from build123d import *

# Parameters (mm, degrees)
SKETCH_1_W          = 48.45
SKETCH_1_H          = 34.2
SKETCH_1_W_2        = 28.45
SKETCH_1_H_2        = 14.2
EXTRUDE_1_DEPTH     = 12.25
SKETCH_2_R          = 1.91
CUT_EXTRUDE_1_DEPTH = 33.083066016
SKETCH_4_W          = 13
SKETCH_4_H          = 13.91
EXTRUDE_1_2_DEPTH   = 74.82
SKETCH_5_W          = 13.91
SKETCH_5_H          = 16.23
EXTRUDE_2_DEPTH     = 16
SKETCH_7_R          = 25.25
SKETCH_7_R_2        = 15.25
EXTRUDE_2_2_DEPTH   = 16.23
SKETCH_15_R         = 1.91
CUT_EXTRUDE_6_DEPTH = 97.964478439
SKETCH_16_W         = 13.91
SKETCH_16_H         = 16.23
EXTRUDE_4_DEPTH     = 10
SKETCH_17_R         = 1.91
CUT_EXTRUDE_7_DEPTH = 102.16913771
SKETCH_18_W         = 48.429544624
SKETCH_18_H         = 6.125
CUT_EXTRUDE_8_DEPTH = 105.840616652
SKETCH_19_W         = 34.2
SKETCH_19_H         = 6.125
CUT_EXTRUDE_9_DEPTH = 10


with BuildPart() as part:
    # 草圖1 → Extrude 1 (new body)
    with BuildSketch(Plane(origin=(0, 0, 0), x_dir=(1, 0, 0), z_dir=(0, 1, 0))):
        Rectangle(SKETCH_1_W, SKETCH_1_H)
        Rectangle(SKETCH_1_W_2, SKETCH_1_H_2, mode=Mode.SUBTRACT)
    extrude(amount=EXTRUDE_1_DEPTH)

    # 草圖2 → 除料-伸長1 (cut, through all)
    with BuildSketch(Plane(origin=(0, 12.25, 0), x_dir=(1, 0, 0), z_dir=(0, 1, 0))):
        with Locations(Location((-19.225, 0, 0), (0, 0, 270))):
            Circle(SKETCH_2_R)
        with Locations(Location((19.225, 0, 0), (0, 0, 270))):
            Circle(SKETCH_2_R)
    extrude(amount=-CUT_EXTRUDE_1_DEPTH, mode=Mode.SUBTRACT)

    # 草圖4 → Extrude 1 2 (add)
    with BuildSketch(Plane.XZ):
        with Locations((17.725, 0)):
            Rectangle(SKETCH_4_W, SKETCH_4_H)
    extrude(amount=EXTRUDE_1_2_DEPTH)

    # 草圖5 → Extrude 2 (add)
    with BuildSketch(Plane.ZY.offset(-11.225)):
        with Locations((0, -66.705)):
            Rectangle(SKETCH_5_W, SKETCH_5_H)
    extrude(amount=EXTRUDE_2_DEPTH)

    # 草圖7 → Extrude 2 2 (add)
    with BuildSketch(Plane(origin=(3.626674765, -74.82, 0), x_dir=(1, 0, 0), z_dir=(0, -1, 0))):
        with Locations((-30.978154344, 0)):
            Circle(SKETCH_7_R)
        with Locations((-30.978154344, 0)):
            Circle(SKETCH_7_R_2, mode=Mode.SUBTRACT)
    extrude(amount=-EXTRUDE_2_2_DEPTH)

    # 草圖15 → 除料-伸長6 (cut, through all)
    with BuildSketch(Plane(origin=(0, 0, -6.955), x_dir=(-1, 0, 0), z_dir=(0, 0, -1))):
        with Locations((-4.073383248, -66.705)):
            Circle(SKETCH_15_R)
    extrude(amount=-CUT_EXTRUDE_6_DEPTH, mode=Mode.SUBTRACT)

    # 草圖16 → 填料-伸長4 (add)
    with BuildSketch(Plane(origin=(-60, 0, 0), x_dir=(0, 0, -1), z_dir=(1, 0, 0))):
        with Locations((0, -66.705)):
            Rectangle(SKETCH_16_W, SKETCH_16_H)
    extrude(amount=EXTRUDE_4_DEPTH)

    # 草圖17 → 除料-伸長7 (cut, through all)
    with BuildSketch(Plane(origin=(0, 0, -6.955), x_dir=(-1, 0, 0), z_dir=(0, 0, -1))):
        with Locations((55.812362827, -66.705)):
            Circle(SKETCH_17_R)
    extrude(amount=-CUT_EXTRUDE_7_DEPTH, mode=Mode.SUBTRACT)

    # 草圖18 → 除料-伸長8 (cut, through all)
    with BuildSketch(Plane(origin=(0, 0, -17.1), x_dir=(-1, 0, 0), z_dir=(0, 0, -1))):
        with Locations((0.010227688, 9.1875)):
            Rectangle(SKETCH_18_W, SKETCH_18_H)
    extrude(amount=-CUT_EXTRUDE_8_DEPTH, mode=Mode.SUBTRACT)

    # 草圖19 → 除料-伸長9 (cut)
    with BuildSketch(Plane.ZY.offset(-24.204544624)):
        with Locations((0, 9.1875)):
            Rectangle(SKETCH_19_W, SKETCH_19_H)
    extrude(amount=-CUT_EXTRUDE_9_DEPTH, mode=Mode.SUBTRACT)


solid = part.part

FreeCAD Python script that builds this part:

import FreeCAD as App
import Part
import Sketcher
from FreeCAD import Vector

doc = App.newDocument("Part")
body = doc.addObject("PartDesign::Body", "Body")

# Sketch on XZ plane
sketch1 = body.newObject("Sketcher::SketchObject", "Sketch")
sketch1.AttachmentSupport = (doc.getObject("XZ_Plane"), [""])
sketch1.MapMode = "FlatFace"
sketch1.addGeometry([
    Part.LineSegment(Vector(-24, -17, 0), Vector(-24, 17, 0)),  # 0
    Part.LineSegment(Vector(-24, 17, 0), Vector(24, 17, 0)),  # 1
    Part.LineSegment(Vector(24, 17, 0), Vector(24, -17, 0)),  # 2
    Part.LineSegment(Vector(24, -17, 0), Vector(-24, -17, 0)),  # 3
    Part.LineSegment(Vector(14, 7, 0), Vector(-14, 7, 0)),  # 4
    Part.LineSegment(Vector(-14, 7, 0), Vector(-14, -7, 0)),  # 5
    Part.LineSegment(Vector(-14, -7, 0), Vector(14, -7, 0)),  # 6
    Part.LineSegment(Vector(14, -7, 0), Vector(14, 7, 0)),  # 7
], False)
sketch1.addConstraint([
    Sketcher.Constraint("Coincident", 0, 2, 1, 1),
    Sketcher.Constraint("Coincident", 1, 2, 2, 1),
    Sketcher.Constraint("Coincident", 2, 2, 3, 1),
    Sketcher.Constraint("Coincident", 3, 2, 0, 1),
    Sketcher.Constraint("Coincident", 4, 2, 5, 1),
    Sketcher.Constraint("Coincident", 5, 2, 6, 1),
    Sketcher.Constraint("Coincident", 6, 2, 7, 1),
    Sketcher.Constraint("Coincident", 7, 2, 4, 1),
    Sketcher.Constraint("Vertical", 0),
    Sketcher.Constraint("Horizontal", 1),
    Sketcher.Constraint("Vertical", 2),
    Sketcher.Constraint("Horizontal", 3),
    Sketcher.Constraint("Horizontal", 4),
    Sketcher.Constraint("Vertical", 5),
    Sketcher.Constraint("Horizontal", 6),
    Sketcher.Constraint("Vertical", 7),
    Sketcher.Constraint("Symmetric", 0, 2, 2, 2, -1, 1),
    Sketcher.Constraint("Symmetric", 4, 2, 6, 2, -1, 1),
    Sketcher.Constraint("DistanceY", 0, 1, 0, 2, 34.2),
    Sketcher.Constraint("DistanceY", 5, 2, 5, 1, 14.2),
    Sketcher.Constraint("DistanceX", 0, 2, 4, 2, 10.0),
    Sketcher.Constraint("DistanceX", 1, 1, 1, 2, 48.45),
])
pad1 = body.newObject("PartDesign::Pad", "Pad")
pad1.Profile = sketch1
pad1.Length = 12.25
pad1.Reversed = True

# Sketch on XZ plane
sketch2 = body.newObject("Sketcher::SketchObject", "Sketch001")
sketch2.AttachmentSupport = (doc.getObject("XZ_Plane"), [""])
sketch2.MapMode = "FlatFace"
sketch2.AttachmentOffset = App.Placement(Vector(0, 0, -12.25), App.Rotation())
sketch2.addGeometry([
    Part.Circle(Vector(-19.2, 0, 0), Vector(0, 0, 1), 1.9),
    Part.Circle(Vector(19.2, 0, 0), Vector(0, 0, 1), 1.9),
], False)
sketch2.addConstraint([
    Sketcher.Constraint("Equal", 0, 1),
    Sketcher.Constraint("Symmetric", 0, 3, 1, 3, -1, 1),
    Sketcher.Constraint("PointOnObject", 0, 3, -1),
    Sketcher.Constraint("Diameter", 0, 3.82),
    Sketcher.Constraint("DistanceX", 0, 3, 1, 3, 38.45),
])
pocket1 = body.newObject("PartDesign::Pocket", "Pocket")
pocket1.Profile = sketch2
pocket1.Type = "ThroughAll"
pocket1.Reversed = True

# Sketch on XZ plane
sketch3 = body.newObject("Sketcher::SketchObject", "Sketch002")
sketch3.AttachmentSupport = (doc.getObject("XZ_Plane"), [""])
sketch3.MapMode = "FlatFace"
sketch3.addGeometry([
    Part.LineSegment(Vector(11, 7, 0), Vector(11, -7, 0)),
    Part.LineSegment(Vector(11, -7, 0), Vector(24, -7, 0)),
    Part.LineSegment(Vector(24, -7, 0), Vector(24, 7, 0)),
    Part.LineSegment(Vector(24, 7, 0), Vector(11, 7, 0)),
], False)
sketch3.addConstraint([
    Sketcher.Constraint("Coincident", 0, 2, 1, 1),
    Sketcher.Constraint("Coincident", 1, 2, 2, 1),
    Sketcher.Constraint("Coincident", 2, 2, 3, 1),
    Sketcher.Constraint("Coincident", 3, 2, 0, 1),
    Sketcher.Constraint("Vertical", 0),
    Sketcher.Constraint("Horizontal", 1),
    Sketcher.Constraint("Vertical", 2),
    Sketcher.Constraint("Horizontal", 3),
    Sketcher.Constraint("DistanceX", 1, 1, 1, 2, 13.0),
    Sketcher.Constraint("DistanceY", 0, 2, 0, 1, 13.91),
    Sketcher.Constraint("DistanceX", -1, 1, 0, 2, 11.225),
    Sketcher.Constraint("DistanceY", 0, 2, -1, 1, 6.955),
])
pad2 = body.newObject("PartDesign::Pad", "Pad001")
pad2.Profile = sketch3
pad2.Length = 74.82

# Sketch on YZ plane
sketch4 = body.newObject("Sketcher::SketchObject", "Sketch003")
sketch4.AttachmentSupport = (doc.getObject("YZ_Plane"), [""])
sketch4.MapMode = "FlatFace"
sketch4.AttachmentOffset = App.Placement(Vector(0, 0, 11.225), App.Rotation())
sketch4.addGeometry([
    Part.LineSegment(Vector(-59, -7, 0), Vector(-75, -7, 0)),
    Part.LineSegment(Vector(-75, -7, 0), Vector(-75, 7, 0)),
    Part.LineSegment(Vector(-75, 7, 0), Vector(-59, 7, 0)),
    Part.LineSegment(Vector(-59, 7, 0), Vector(-59, -7, 0)),
], False)
sketch4.addConstraint([
    Sketcher.Constraint("Coincident", 0, 2, 1, 1),
    Sketcher.Constraint("Coincident", 1, 2, 2, 1),
    Sketcher.Constraint("Coincident", 2, 2, 3, 1),
    Sketcher.Constraint("Coincident", 3, 2, 0, 1),
    Sketcher.Constraint("Horizontal", 0),
    Sketcher.Constraint("Vertical", 1),
    Sketcher.Constraint("Horizontal", 2),
    Sketcher.Constraint("Vertical", 3),
    Sketcher.Constraint("DistanceX", 0, 2, 0, 1, 16.23),
    Sketcher.Constraint("DistanceY", 1, 1, 1, 2, 13.91),
    Sketcher.Constraint("DistanceX", 0, 2, -1, 1, 74.82),
    Sketcher.Constraint("DistanceY", 0, 2, -1, 1, 6.955),
])
pad3 = body.newObject("PartDesign::Pad", "Pad002")
pad3.Profile = sketch4
pad3.Length = 16
pad3.Reversed = True

# Sketch on XZ plane
sketch5 = body.newObject("Sketcher::SketchObject", "Sketch004")
sketch5.AttachmentSupport = (doc.getObject("XZ_Plane"), [""])
sketch5.MapMode = "FlatFace"
sketch5.AttachmentOffset = App.Placement(Vector(0, 0, 74.82), App.Rotation())
sketch5.addGeometry([
    Part.Circle(Vector(-27, 0, 0), Vector(0, 0, 1), 25),
    Part.Circle(Vector(-27, 0, 0), Vector(0, 0, 1), 15),
], False)
sketch5.addConstraint([
    Sketcher.Constraint("Coincident", 1, 3, 0, 3),
    Sketcher.Constraint("PointOnObject", 0, 3, -1),
    Sketcher.Constraint("Diameter", 0, 50.5),
    Sketcher.Constraint("Diameter", 1, 30.5),
    Sketcher.Constraint("DistanceX", 0, 3, -1, 1, 27.35148),
])
pad4 = body.newObject("PartDesign::Pad", "Pad003")
pad4.Profile = sketch5
pad4.Length = 16.23
pad4.Reversed = True

# Sketch on XY plane
sketch6 = body.newObject("Sketcher::SketchObject", "Sketch005")
sketch6.AttachmentSupport = (doc.getObject("XY_Plane"), [""])
sketch6.MapMode = "FlatFace"
sketch6.AttachmentOffset = App.Placement(Vector(0, 0, -6.955), App.Rotation())
sketch6.addGeometry(Part.Circle(Vector(4.1, -66.7, 0), Vector(0, 0, 1), 1.9), False)
sketch6.addConstraint([
    Sketcher.Constraint("Diameter", 0, 3.82),
    Sketcher.Constraint("DistanceY", 0, 3, -1, 1, 66.705),
    Sketcher.Constraint("DistanceX", -1, 1, 0, 3, 4.073383),
])
pocket2 = body.newObject("PartDesign::Pocket", "Pocket001")
pocket2.Profile = sketch6
pocket2.Type = "ThroughAll"
pocket2.Reversed = True

# Sketch on YZ plane
sketch7 = body.newObject("Sketcher::SketchObject", "Sketch006")
sketch7.AttachmentSupport = (doc.getObject("YZ_Plane"), [""])
sketch7.MapMode = "FlatFace"
sketch7.AttachmentOffset = App.Placement(Vector(0, 0, -60), App.Rotation())
sketch7.addGeometry([
    Part.LineSegment(Vector(-59, 7, 0), Vector(-75, 7, 0)),
    Part.LineSegment(Vector(-75, 7, 0), Vector(-75, -7, 0)),
    Part.LineSegment(Vector(-75, -7, 0), Vector(-59, -7, 0)),
    Part.LineSegment(Vector(-59, -7, 0), Vector(-59, 7, 0)),
], False)
sketch7.addConstraint([
    Sketcher.Constraint("Coincident", 0, 2, 1, 1),
    Sketcher.Constraint("Coincident", 1, 2, 2, 1),
    Sketcher.Constraint("Coincident", 2, 2, 3, 1),
    Sketcher.Constraint("Coincident", 3, 2, 0, 1),
    Sketcher.Constraint("Horizontal", 0),
    Sketcher.Constraint("Vertical", 1),
    Sketcher.Constraint("Horizontal", 2),
    Sketcher.Constraint("Vertical", 3),
    Sketcher.Constraint("DistanceX", 0, 2, 0, 1, 16.23),
    Sketcher.Constraint("DistanceY", 1, 2, 1, 1, 13.91),
    Sketcher.Constraint("DistanceX", 0, 2, -1, 1, 74.82),
    Sketcher.Constraint("DistanceY", -1, 1, 0, 2, 6.955),
])
pad5 = body.newObject("PartDesign::Pad", "Pad004")
pad5.Profile = sketch7
pad5.Length = 10

# Sketch on XY plane
sketch8 = body.newObject("Sketcher::SketchObject", "Sketch007")
sketch8.AttachmentSupport = (doc.getObject("XY_Plane"), [""])
sketch8.MapMode = "FlatFace"
sketch8.AttachmentOffset = App.Placement(Vector(0, 0, -6.955), App.Rotation())
sketch8.addGeometry(Part.Circle(Vector(-55.8, -66.7, 0), Vector(0, 0, 1), 1.9), False)
sketch8.addConstraint([
    Sketcher.Constraint("Diameter", 0, 3.82),
    Sketcher.Constraint("DistanceY", 0, 3, -1, 1, 66.705),
    Sketcher.Constraint("DistanceX", 0, 3, -1, 1, 55.812363),
])
pocket3 = body.newObject("PartDesign::Pocket", "Pocket002")
pocket3.Profile = sketch8
pocket3.Type = "ThroughAll"
pocket3.Reversed = True

# Sketch on XY plane
sketch9 = body.newObject("Sketcher::SketchObject", "Sketch008")
sketch9.AttachmentSupport = (doc.getObject("XY_Plane"), [""])
sketch9.MapMode = "FlatFace"
sketch9.AttachmentOffset = App.Placement(Vector(0, 0, -17.1), App.Rotation())
sketch9.addGeometry([
    Part.LineSegment(Vector(24, 12, 0), Vector(24, 6, 0)),
    Part.LineSegment(Vector(24, 6, 0), Vector(-24, 6, 0)),
    Part.LineSegment(Vector(-24, 6, 0), Vector(-24, 12, 0)),
    Part.LineSegment(Vector(-24, 12, 0), Vector(24, 12, 0)),
], False)
sketch9.addConstraint([
    Sketcher.Constraint("Coincident", 0, 2, 1, 1),
    Sketcher.Constraint("Coincident", 1, 2, 2, 1),
    Sketcher.Constraint("Coincident", 2, 2, 3, 1),
    Sketcher.Constraint("Coincident", 3, 2, 0, 1),
    Sketcher.Constraint("Vertical", 0),
    Sketcher.Constraint("Horizontal", 1),
    Sketcher.Constraint("Vertical", 2),
    Sketcher.Constraint("Horizontal", 3),
    Sketcher.Constraint("DistanceY", 0, 2, 0, 1, 6.125),
    Sketcher.Constraint("DistanceY", -1, 1, 2, 2, 12.25),
    Sketcher.Constraint("DistanceX", 1, 2, -1, 1, 24.225),
    Sketcher.Constraint("DistanceX", 1, 2, 1, 1, 48.429545),
])
pocket4 = body.newObject("PartDesign::Pocket", "Pocket003")
pocket4.Profile = sketch9
pocket4.Type = "ThroughAll"
pocket4.Reversed = True

# Sketch on YZ plane
sketch10 = body.newObject("Sketcher::SketchObject", "Sketch009")
sketch10.AttachmentSupport = (doc.getObject("YZ_Plane"), [""])
sketch10.MapMode = "FlatFace"
sketch10.AttachmentOffset = App.Placement(Vector(0, 0, 24.204545), App.Rotation())
sketch10.addGeometry([
    Part.LineSegment(Vector(12, -17, 0), Vector(6, -17, 0)),
    Part.LineSegment(Vector(6, -17, 0), Vector(6, 17, 0)),
    Part.LineSegment(Vector(6, 17, 0), Vector(12, 17, 0)),
    Part.LineSegment(Vector(12, 17, 0), Vector(12, -17, 0)),
], False)
sketch10.addConstraint([
    Sketcher.Constraint("Coincident", 0, 2, 1, 1),
    Sketcher.Constraint("Coincident", 1, 2, 2, 1),
    Sketcher.Constraint("Coincident", 2, 2, 3, 1),
    Sketcher.Constraint("Coincident", 3, 2, 0, 1),
    Sketcher.Constraint("Horizontal", 0),
    Sketcher.Constraint("Vertical", 1),
    Sketcher.Constraint("Horizontal", 2),
    Sketcher.Constraint("Vertical", 3),
    Sketcher.Constraint("DistanceY", 1, 1, 1, 2, 34.2),
    Sketcher.Constraint("DistanceY", 0, 2, -1, 1, 17.1),
    Sketcher.Constraint("DistanceX", 0, 2, 0, 1, 6.125),
    Sketcher.Constraint("DistanceX", -1, 1, 2, 2, 12.25),
])
pocket5 = body.newObject("PartDesign::Pocket", "Pocket004")
pocket5.Profile = sketch10
pocket5.Length = 10
pocket5.Reversed = True

doc.recompute()
